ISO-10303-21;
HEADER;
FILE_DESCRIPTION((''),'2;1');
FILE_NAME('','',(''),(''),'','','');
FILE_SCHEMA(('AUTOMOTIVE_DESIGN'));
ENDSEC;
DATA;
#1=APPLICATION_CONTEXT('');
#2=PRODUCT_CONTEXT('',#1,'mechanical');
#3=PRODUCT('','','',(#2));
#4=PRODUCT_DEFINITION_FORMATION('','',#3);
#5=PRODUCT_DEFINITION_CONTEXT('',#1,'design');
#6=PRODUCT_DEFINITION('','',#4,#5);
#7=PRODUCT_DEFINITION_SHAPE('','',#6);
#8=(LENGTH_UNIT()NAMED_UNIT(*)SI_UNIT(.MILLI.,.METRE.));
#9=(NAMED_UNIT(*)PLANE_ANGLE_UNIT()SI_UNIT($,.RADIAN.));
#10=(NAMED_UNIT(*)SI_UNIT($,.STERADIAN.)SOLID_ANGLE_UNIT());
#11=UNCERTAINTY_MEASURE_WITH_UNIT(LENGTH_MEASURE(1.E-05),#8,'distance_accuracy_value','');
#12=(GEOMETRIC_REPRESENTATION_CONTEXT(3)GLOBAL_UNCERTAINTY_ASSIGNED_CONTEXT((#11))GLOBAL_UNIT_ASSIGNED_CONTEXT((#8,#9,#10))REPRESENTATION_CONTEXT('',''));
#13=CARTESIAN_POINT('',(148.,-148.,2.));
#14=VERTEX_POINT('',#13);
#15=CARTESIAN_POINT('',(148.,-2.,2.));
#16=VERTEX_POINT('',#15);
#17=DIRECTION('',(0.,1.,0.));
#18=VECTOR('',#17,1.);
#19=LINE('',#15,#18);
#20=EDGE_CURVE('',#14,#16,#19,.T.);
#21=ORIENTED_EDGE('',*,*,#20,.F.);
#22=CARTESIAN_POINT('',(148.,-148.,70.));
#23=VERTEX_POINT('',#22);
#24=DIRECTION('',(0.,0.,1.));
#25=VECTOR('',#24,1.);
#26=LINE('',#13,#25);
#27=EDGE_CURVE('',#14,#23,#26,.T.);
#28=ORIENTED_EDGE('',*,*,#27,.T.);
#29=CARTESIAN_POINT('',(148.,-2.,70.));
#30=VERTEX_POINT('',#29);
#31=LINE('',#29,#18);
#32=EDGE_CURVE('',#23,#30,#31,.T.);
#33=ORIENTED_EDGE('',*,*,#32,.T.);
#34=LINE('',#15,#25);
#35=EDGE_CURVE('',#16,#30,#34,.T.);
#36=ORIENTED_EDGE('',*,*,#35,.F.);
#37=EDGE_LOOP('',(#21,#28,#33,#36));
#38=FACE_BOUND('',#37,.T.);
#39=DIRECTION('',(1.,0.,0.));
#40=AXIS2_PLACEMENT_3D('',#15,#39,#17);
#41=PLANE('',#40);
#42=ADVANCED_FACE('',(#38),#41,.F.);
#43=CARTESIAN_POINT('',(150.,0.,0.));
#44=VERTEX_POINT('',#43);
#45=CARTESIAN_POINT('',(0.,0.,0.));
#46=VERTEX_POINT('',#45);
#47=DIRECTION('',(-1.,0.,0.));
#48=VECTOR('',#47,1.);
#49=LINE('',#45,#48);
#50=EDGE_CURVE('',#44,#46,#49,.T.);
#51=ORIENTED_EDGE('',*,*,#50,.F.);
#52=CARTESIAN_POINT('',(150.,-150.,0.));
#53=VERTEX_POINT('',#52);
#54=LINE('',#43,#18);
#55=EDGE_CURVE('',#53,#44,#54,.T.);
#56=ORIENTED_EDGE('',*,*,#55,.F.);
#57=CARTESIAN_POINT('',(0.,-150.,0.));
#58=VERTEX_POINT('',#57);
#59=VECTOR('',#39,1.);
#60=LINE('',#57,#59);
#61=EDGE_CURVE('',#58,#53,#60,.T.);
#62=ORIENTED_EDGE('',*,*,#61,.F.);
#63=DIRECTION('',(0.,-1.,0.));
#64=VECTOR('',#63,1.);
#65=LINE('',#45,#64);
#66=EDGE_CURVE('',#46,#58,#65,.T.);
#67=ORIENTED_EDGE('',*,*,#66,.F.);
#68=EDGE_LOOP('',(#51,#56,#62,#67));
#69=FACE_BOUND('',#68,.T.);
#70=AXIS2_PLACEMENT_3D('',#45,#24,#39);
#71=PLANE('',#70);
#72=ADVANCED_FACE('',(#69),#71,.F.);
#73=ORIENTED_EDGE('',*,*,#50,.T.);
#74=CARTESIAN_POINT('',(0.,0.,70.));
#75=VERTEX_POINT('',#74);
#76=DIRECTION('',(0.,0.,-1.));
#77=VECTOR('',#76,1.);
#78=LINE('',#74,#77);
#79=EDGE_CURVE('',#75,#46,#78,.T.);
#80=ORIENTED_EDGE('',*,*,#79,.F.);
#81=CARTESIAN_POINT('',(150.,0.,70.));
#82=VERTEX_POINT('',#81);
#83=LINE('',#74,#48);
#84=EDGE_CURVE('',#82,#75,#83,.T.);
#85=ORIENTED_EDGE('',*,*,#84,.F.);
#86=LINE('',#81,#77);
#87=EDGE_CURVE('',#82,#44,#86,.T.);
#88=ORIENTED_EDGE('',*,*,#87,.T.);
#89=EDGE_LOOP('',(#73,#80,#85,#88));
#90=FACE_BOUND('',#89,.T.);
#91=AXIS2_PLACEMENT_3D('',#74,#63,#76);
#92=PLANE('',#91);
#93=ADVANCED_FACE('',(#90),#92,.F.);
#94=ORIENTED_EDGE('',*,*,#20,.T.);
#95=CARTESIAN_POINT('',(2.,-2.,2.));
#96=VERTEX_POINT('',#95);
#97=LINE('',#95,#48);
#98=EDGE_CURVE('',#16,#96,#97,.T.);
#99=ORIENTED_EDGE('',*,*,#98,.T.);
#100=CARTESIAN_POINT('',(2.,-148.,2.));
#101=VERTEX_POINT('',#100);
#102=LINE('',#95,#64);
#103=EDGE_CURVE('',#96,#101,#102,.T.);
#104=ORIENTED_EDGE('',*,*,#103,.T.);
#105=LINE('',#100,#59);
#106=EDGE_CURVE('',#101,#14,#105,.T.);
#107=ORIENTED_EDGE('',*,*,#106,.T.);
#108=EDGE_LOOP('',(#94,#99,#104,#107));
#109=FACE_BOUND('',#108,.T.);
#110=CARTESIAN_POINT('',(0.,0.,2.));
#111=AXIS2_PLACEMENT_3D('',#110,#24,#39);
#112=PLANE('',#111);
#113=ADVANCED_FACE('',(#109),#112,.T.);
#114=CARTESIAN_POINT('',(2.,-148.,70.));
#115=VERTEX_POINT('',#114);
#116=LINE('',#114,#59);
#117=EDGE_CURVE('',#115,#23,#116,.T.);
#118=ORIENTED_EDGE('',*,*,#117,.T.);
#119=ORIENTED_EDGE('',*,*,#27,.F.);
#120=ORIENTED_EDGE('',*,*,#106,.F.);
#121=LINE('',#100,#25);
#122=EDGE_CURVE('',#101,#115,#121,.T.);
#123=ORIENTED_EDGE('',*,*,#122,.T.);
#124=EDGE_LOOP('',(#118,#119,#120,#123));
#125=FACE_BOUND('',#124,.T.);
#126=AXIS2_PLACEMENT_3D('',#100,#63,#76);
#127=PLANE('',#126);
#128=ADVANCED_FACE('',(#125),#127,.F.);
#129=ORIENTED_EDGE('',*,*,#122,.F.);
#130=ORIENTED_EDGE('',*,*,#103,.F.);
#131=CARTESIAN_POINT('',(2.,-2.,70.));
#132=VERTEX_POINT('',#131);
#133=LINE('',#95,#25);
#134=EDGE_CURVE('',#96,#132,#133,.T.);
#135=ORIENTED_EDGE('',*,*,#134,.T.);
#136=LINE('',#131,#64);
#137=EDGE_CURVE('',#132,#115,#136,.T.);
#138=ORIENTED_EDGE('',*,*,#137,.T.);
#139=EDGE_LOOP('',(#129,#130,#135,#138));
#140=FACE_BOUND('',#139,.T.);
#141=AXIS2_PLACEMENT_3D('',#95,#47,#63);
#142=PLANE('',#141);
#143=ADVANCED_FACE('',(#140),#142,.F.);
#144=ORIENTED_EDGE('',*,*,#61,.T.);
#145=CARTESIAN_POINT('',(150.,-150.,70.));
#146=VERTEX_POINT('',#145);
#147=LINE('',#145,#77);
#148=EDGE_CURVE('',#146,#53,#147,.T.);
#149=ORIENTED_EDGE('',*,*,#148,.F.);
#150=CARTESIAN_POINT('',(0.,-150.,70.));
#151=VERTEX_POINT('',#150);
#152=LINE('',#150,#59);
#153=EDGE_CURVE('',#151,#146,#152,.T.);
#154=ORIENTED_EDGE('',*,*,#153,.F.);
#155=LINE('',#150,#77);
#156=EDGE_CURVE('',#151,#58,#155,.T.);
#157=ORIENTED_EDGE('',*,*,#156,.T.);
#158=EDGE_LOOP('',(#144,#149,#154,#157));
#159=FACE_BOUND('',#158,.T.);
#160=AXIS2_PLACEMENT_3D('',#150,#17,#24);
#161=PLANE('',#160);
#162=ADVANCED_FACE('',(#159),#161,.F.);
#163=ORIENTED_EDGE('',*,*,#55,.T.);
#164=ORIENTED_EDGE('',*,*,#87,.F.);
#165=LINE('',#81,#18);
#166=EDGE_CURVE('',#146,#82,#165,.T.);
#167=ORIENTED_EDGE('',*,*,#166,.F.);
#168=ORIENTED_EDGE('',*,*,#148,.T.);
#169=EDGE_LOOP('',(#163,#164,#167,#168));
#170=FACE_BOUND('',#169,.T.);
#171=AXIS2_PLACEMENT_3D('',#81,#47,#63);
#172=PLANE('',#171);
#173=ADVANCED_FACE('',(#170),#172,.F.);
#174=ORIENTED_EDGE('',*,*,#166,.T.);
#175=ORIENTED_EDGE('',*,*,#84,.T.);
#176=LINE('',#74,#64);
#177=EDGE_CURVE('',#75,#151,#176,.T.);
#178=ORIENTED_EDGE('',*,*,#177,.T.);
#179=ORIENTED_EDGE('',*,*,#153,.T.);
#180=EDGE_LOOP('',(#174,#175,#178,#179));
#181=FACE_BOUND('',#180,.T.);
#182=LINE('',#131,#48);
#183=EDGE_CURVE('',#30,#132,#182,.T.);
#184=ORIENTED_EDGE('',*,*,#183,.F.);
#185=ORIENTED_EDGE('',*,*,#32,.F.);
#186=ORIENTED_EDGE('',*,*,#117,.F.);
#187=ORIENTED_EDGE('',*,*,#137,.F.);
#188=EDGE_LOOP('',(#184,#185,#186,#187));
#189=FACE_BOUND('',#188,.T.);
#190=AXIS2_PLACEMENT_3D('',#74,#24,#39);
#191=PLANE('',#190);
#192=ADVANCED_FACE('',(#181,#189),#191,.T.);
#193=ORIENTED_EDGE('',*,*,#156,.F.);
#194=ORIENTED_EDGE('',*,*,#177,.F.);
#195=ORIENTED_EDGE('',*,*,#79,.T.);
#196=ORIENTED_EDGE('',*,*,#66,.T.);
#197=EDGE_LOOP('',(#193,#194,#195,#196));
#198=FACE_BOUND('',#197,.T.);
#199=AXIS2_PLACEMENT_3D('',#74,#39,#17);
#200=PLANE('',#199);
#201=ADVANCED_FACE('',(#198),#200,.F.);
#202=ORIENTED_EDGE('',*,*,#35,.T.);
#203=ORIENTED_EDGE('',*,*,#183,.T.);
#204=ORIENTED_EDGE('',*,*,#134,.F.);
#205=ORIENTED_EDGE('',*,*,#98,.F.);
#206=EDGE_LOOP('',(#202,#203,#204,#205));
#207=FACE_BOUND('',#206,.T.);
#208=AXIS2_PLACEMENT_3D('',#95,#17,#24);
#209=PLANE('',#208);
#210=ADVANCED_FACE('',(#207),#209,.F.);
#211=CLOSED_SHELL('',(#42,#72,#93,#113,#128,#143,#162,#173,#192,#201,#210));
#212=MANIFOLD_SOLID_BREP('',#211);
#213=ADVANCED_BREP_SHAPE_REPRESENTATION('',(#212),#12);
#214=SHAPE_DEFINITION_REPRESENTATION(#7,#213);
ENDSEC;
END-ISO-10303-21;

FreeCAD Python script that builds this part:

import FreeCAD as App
import Part
import Sketcher
from FreeCAD import Vector


def add_polygon(sketch, points):
    """Adds a closed chain of lines whose ends are joined by coincident constraints."""
    first, n = sketch.GeometryCount, len(points)
    for a, b in zip(points, points[1:] + points[:1]):
        sketch.addGeometry(Part.LineSegment(App.Vector(*a, 0), App.Vector(*b, 0)), False)
    for i in range(n):
        sketch.addConstraint(Sketcher.Constraint("Coincident", first + i, 2, first + (i + 1) % n, 1))

doc = App.newDocument("Part")
body = doc.addObject("PartDesign::Body", "Body")

sketch1 = body.newObject("Sketcher::SketchObject", "Sketch")
sketch1.AttachmentSupport = (doc.getObject("XY_Plane"), [""])
sketch1.MapMode = "FlatFace"
add_polygon(sketch1, [(0, 0), (0, -150), (150, -150), (150, 0)])
sketch1.addConstraint([
    Sketcher.Constraint("Vertical", 0),
    Sketcher.Constraint("Horizontal", 1),
    Sketcher.Constraint("Vertical", 2),
    Sketcher.Constraint("Horizontal", 3),
    Sketcher.Constraint("Coincident", 3, 2, -1, 1),
    Sketcher.Constraint("Equal", 3, 0),
    Sketcher.Constraint("DistanceX", 1, 1, 1, 2, 150.0),
])
pad1 = body.newObject("PartDesign::Pad", "Pad")
pad1.Profile = sketch1
pad1.Length = 70

sketch2 = body.newObject("Sketcher::SketchObject", "Sketch001")
sketch2.AttachmentSupport = (doc.getObject("XY_Plane"), [""])
sketch2.MapMode = "FlatFace"
sketch2.AttachmentOffset = App.Placement(Vector(0, 0, 70), App.Rotation())
add_polygon(sketch2, [(2, -2), (2, -148), (148, -148), (148, -2)])
sketch2.addConstraint([
    Sketcher.Constraint("Vertical", 0),
    Sketcher.Constraint("Horizontal", 1),
    Sketcher.Constraint("Vertical", 2),
    Sketcher.Constraint("Horizontal", 3),
    Sketcher.Constraint("Equal", 3, 0),
    Sketcher.Constraint("DistanceX", 1, 1, 1, 2, 146.0),
    Sketcher.Constraint("DistanceX", -1, 1, 0, 2, 2.0),
    Sketcher.Constraint("DistanceY", 0, 2, -1, 1, 148.0),
])
pocket1 = body.newObject("PartDesign::Pocket", "Pocket")
pocket1.Profile = sketch2
pocket1.Length = 68

doc.recompute()
